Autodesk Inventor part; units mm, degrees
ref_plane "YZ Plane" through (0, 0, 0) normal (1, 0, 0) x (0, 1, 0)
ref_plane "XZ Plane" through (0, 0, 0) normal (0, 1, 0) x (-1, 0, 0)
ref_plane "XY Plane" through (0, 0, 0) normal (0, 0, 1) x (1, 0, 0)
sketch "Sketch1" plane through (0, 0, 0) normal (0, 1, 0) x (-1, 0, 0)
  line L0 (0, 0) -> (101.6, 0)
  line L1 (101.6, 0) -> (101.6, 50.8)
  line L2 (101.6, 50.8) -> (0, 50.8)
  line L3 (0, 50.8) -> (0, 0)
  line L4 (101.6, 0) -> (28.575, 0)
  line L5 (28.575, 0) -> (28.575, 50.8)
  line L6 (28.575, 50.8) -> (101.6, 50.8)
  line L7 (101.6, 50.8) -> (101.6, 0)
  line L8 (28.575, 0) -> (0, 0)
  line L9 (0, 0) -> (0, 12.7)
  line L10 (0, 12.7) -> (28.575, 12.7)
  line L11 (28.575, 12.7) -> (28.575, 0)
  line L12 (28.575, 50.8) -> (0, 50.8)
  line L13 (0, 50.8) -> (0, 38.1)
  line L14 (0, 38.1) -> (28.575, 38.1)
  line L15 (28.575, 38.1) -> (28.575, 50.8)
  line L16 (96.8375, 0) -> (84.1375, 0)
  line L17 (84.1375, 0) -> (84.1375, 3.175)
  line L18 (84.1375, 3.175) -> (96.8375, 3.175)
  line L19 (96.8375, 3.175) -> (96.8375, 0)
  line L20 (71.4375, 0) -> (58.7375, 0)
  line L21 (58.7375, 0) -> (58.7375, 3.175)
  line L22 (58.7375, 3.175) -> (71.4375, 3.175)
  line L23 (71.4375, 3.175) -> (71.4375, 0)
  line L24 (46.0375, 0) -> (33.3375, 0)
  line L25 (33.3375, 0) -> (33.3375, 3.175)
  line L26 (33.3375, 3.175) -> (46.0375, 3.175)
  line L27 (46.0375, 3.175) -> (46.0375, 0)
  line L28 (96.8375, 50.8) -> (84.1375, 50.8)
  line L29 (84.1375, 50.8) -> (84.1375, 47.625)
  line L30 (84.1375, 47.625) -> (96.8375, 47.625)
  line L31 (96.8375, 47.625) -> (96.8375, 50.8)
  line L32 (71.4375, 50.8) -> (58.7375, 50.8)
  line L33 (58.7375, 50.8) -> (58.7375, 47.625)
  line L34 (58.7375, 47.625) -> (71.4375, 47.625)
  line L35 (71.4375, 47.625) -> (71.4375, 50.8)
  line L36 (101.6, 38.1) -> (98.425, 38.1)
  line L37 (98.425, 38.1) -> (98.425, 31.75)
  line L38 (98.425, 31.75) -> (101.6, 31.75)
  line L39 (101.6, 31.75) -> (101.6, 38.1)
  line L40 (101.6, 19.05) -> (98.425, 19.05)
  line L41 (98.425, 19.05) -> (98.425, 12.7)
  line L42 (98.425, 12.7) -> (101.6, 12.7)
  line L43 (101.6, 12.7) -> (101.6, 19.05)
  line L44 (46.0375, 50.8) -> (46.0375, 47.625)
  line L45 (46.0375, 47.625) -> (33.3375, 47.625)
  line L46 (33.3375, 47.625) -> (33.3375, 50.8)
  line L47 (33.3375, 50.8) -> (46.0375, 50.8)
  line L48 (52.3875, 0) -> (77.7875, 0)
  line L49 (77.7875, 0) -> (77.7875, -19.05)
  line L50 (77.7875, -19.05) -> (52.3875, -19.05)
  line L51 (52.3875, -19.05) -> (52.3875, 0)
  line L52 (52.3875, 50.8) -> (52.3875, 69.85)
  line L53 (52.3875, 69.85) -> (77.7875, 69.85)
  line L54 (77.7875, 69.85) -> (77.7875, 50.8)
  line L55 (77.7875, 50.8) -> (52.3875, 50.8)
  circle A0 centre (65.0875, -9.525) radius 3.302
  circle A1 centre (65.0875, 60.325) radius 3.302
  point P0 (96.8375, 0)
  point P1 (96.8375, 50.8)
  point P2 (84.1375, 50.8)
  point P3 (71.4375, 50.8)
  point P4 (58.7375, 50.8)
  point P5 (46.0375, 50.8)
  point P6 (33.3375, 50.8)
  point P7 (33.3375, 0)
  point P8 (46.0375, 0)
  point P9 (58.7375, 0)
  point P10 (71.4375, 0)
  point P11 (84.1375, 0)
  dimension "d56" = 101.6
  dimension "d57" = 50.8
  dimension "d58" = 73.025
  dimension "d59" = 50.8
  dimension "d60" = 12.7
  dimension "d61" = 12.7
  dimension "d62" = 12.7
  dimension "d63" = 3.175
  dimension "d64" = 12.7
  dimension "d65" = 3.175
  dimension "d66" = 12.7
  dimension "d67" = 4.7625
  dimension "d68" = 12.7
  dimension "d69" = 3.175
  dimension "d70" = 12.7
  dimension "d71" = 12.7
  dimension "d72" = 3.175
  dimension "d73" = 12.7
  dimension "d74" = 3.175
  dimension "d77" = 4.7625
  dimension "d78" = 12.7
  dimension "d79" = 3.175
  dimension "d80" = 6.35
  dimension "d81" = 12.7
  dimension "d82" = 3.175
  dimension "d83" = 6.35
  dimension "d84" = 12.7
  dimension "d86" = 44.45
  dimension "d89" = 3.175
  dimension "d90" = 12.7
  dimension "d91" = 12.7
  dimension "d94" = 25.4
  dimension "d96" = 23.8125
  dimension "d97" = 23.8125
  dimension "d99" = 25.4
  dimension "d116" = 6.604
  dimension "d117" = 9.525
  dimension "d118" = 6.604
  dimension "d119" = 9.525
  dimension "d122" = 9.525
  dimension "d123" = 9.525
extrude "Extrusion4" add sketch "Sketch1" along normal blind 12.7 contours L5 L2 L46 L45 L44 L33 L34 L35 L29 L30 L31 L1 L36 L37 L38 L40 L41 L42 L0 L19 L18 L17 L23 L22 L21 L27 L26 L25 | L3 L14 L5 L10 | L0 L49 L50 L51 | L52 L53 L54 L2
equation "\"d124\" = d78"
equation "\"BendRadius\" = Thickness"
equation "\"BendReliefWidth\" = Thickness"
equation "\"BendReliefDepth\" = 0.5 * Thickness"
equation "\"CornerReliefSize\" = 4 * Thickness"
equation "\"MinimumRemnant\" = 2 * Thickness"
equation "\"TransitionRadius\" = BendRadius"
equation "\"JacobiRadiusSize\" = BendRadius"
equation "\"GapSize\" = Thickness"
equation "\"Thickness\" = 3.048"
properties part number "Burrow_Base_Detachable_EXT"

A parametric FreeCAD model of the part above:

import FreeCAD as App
import Part
import Sketcher
Q = App.Units.Quantity

doc = App.newDocument("Part")
params = doc.addObject("Spreadsheet::Sheet", "Params")
for row, (alias, value) in enumerate([
    ("sketch1_diameter", "0.26 in"),
    ("sketch1_width", "1 in"),
    ("sketch1_width2", "0.5 in"),
    ("sketch1_width3", "0.1875 in"),
    ("sketch1_width4", "0.125 in"),
    ("pad1_length", "0.5 in"),
], start=1):
    params.set(f"A{row}", alias)
    params.set(f"B{row}", "=" + value)
    params.setAlias(f"B{row}", alias)

body = doc.addObject("PartDesign::Body", "Body")

sketch1 = body.newObject("Sketcher::SketchObject", "Sketch")
sketch1.AttachmentSupport = (doc.getObject("XZ_Plane"), [""])
sketch1.MapMode = "FlatFace"
sketch1.addGeometry(Part.LineSegment(App.Vector(-28.575, 12.7, 0), App.Vector(-28.575, 0, 0)), False)
sketch1.addGeometry(Part.LineSegment(App.Vector(-28.575, 0, 0), App.Vector(-33.3375, 0, 0)), False)
sketch1.addGeometry(Part.LineSegment(App.Vector(-33.3375, 0, 0), App.Vector(-33.3375, 3.175, 0)), False)
sketch1.addGeometry(Part.LineSegment(App.Vector(-33.3375, 3.175, 0), App.Vector(-46.0375, 3.175, 0)), False)
sketch1.addGeometry(Part.LineSegment(App.Vector(-46.0375, 3.175, 0), App.Vector(-46.0375, 0, 0)), False)
sketch1.addGeometry(Part.LineSegment(App.Vector(-46.0375, 0, 0), App.Vector(-52.3875, 0, 0)), False)
sketch1.addGeometry(Part.LineSegment(App.Vector(-52.3875, 0, 0), App.Vector(-52.3875, -19.05, 0)), False)
sketch1.addGeometry(Part.LineSegment(App.Vector(-52.3875, -19.05, 0), App.Vector(-77.7875, -19.05, 0)), False)
sketch1.addGeometry(Part.LineSegment(App.Vector(-77.7875, -19.05, 0), App.Vector(-77.7875, 0, 0)), False)
sketch1.addGeometry(Part.LineSegment(App.Vector(-77.7875, 0, 0), App.Vector(-84.1375, 0, 0)), False)
sketch1.addGeometry(Part.LineSegment(App.Vector(-84.1375, 0, 0), App.Vector(-84.1375, 3.175, 0)), False)
sketch1.addGeometry(Part.LineSegment(App.Vector(-84.1375, 3.175, 0), App.Vector(-96.8375, 3.175, 0)), False)
sketch1.addGeometry(Part.LineSegment(App.Vector(-96.8375, 3.175, 0), App.Vector(-96.8375, 0, 0)), False)
sketch1.addGeometry(Part.LineSegment(App.Vector(-96.8375, 0, 0), App.Vector(-101.6, 0, 0)), False)
sketch1.addGeometry(Part.LineSegment(App.Vector(-101.6, 0, 0), App.Vector(-101.6, 12.7, 0)), False)
sketch1.addGeometry(Part.LineSegment(App.Vector(-101.6, 12.7, 0), App.Vector(-98.425, 12.7, 0)), False)
sketch1.addGeometry(Part.LineSegment(App.Vector(-98.425, 12.7, 0), App.Vector(-98.425, 19.05, 0)), False)
sketch1.addGeometry(Part.LineSegment(App.Vector(-98.425, 19.05, 0), App.Vector(-101.6, 19.05, 0)), False)
sketch1.addGeometry(Part.LineSegment(App.Vector(-101.6, 19.05, 0), App.Vector(-101.6, 31.75, 0)), False)
sketch1.addGeometry(Part.LineSegment(App.Vector(-101.6, 31.75, 0), App.Vector(-98.425, 31.75, 0)), False)
sketch1.addGeometry(Part.LineSegment(App.Vector(-98.425, 31.75, 0), App.Vector(-98.425, 38.1, 0)), False)
sketch1.addGeometry(Part.LineSegment(App.Vector(-98.425, 38.1, 0), App.Vector(-101.6, 38.1, 0)), False)
sketch1.addGeometry(Part.LineSegment(App.Vector(-101.6, 38.1, 0), App.Vector(-101.6, 50.8, 0)), False)
sketch1.addGeometry(Part.LineSegment(App.Vector(-101.6, 50.8, 0), App.Vector(-96.8375, 50.8, 0)), False)
sketch1.addGeometry(Part.LineSegment(App.Vector(-96.8375, 50.8, 0), App.Vector(-96.8375, 47.625, 0)), False)
sketch1.addGeometry(Part.LineSegment(App.Vector(-96.8375, 47.625, 0), App.Vector(-84.1375, 47.625, 0)), False)
sketch1.addGeometry(Part.LineSegment(App.Vector(-84.1375, 47.625, 0), App.Vector(-84.1375, 50.8, 0)), False)
sketch1.addGeometry(Part.LineSegment(App.Vector(-84.1375, 50.8, 0), App.Vector(-77.7875, 50.8, 0)), False)
sketch1.addGeometry(Part.LineSegment(App.Vector(-77.7875, 50.8, 0), App.Vector(-77.7875, 69.85, 0)), False)
sketch1.addGeometry(Part.LineSegment(App.Vector(-77.7875, 69.85, 0), App.Vector(-52.3875, 69.85, 0)), False)
sketch1.addGeometry(Part.LineSegment(App.Vector(-52.3875, 69.85, 0), App.Vector(-52.3875, 50.8, 0)), False)
sketch1.addGeometry(Part.LineSegment(App.Vector(-52.3875, 50.8, 0), App.Vector(-46.0375, 50.8, 0)), False)
sketch1.addGeometry(Part.LineSegment(App.Vector(-46.0375, 50.8, 0), App.Vector(-46.0375, 47.625, 0)), False)
sketch1.addGeometry(Part.LineSegment(App.Vector(-46.0375, 47.625, 0), App.Vector(-33.3375, 47.625, 0)), False)
sketch1.addGeometry(Part.LineSegment(App.Vector(-33.3375, 47.625, 0), App.Vector(-33.3375, 50.8, 0)), False)
sketch1.addGeometry(Part.LineSegment(App.Vector(-33.3375, 50.8, 0), App.Vector(-28.575, 50.8, 0)), False)
sketch1.addGeometry(Part.LineSegment(App.Vector(-28.575, 50.8, 0), App.Vector(-28.575, 38.1, 0)), False)
sketch1.addGeometry(Part.LineSegment(App.Vector(-28.575, 38.1, 0), App.Vector(0, 38.1, 0)), False)
sketch1.addGeometry(Part.LineSegment(App.Vector(0, 38.1, 0), App.Vector(0, 12.7, 0)), False)
sketch1.addGeometry(Part.LineSegment(App.Vector(0, 12.7, 0), App.Vector(-28.575, 12.7, 0)), False)
sketch1.addGeometry(Part.LineSegment(App.Vector(-58.7375, 47.625, 0), App.Vector(-58.7375, 50.8, 0)), False)
sketch1.addGeometry(Part.LineSegment(App.Vector(-58.7375, 50.8, 0), App.Vector(-71.4375, 50.8, 0)), False)
sketch1.addGeometry(Part.LineSegment(App.Vector(-71.4375, 50.8, 0), App.Vector(-71.4375, 47.625, 0)), False)
sketch1.addGeometry(Part.LineSegment(App.Vector(-71.4375, 47.625, 0), App.Vector(-58.7375, 47.625, 0)), False)
sketch1.addGeometry(Part.LineSegment(App.Vector(-71.4375, 3.175, 0), App.Vector(-71.4375, 0, 0)), False)
sketch1.addGeometry(Part.LineSegment(App.Vector(-71.4375, 0, 0), App.Vector(-58.7375, 0, 0)), False)
sketch1.addGeometry(Part.LineSegment(App.Vector(-58.7375, 0, 0), App.Vector(-58.7375, 3.175, 0)), False)
sketch1.addGeometry(Part.LineSegment(App.Vector(-58.7375, 3.175, 0), App.Vector(-71.4375, 3.175, 0)), False)
sketch1.addGeometry(Part.Circle(App.Vector(-65.0875, 60.325, 0), App.Vector(0, 0, 1), 3.302), False)
sketch1.addGeometry(Part.Circle(App.Vector(-65.0875, -9.525, 0), App.Vector(0, 0, 1), 3.302), False)
sketch1.addConstraint(Sketcher.Constraint("Coincident", 0, 2, 1, 1))
sketch1.addConstraint(Sketcher.Constraint("Coincident", 1, 2, 2, 1))
sketch1.addConstraint(Sketcher.Constraint("Coincident", 2, 2, 3, 1))
sketch1.addConstraint(Sketcher.Constraint("Coincident", 3, 2, 4, 1))
sketch1.addConstraint(Sketcher.Constraint("Coincident", 4, 2, 5, 1))
sketch1.addConstraint(Sketcher.Constraint("Coincident", 5, 2, 6, 1))
sketch1.addConstraint(Sketcher.Constraint("Coincident", 6, 2, 7, 1))
sketch1.addConstraint(Sketcher.Constraint("Coincident", 7, 2, 8, 1))
sketch1.addConstraint(Sketcher.Constraint("Coincident", 8, 2, 9, 1))
sketch1.addConstraint(Sketcher.Constraint("Coincident", 9, 2, 10, 1))
sketch1.addConstraint(Sketcher.Constraint("Coincident", 10, 2, 11, 1))
sketch1.addConstraint(Sketcher.Constraint("Coincident", 11, 2, 12, 1))
sketch1.addConstraint(Sketcher.Constraint("Coincident", 12, 2, 13, 1))
sketch1.addConstraint(Sketcher.Constraint("Coincident", 13, 2, 14, 1))
sketch1.addConstraint(Sketcher.Constraint("Coincident", 14, 2, 15, 1))
sketch1.addConstraint(Sketcher.Constraint("Coincident", 15, 2, 16, 1))
sketch1.addConstraint(Sketcher.Constraint("Coincident", 16, 2, 17, 1))
sketch1.addConstraint(Sketcher.Constraint("Coincident", 17, 2, 18, 1))
sketch1.addConstraint(Sketcher.Constraint("Coincident", 18, 2, 19, 1))
sketch1.addConstraint(Sketcher.Constraint("Coincident", 19, 2, 20, 1))
sketch1.addConstraint(Sketcher.Constraint("Coincident", 20, 2, 21, 1))
sketch1.addConstraint(Sketcher.Constraint("Coincident", 21, 2, 22, 1))
sketch1.addConstraint(Sketcher.Constraint("Coincident", 22, 2, 23, 1))
sketch1.addConstraint(Sketcher.Constraint("Coincident", 23, 2, 24, 1))
sketch1.addConstraint(Sketcher.Constraint("Coincident", 24, 2, 25, 1))
sketch1.addConstraint(Sketcher.Constraint("Coincident", 25, 2, 26, 1))
sketch1.addConstraint(Sketcher.Constraint("Coincident", 26, 2, 27, 1))
sketch1.addConstraint(Sketcher.Constraint("Coincident", 27, 2, 28, 1))
sketch1.addConstraint(Sketcher.Constraint("Coincident", 28, 2, 29, 1))
sketch1.addConstraint(Sketcher.Constraint("Coincident", 29, 2, 30, 1))
sketch1.addConstraint(Sketcher.Constraint("Coincident", 30, 2, 31, 1))
sketch1.addConstraint(Sketcher.Constraint("Coincident", 31, 2, 32, 1))
sketch1.addConstraint(Sketcher.Constraint("Coincident", 32, 2, 33, 1))
sketch1.addConstraint(Sketcher.Constraint("Coincident", 33, 2, 34, 1))
sketch1.addConstraint(Sketcher.Constraint("Coincident", 34, 2, 35, 1))
sketch1.addConstraint(Sketcher.Constraint("Coincident", 35, 2, 36, 1))
sketch1.addConstraint(Sketcher.Constraint("Coincident", 36, 2, 37, 1))
sketch1.addConstraint(Sketcher.Constraint("Coincident", 37, 2, 38, 1))
sketch1.addConstraint(Sketcher.Constraint("Coincident", 38, 2, 39, 1))
sketch1.addConstraint(Sketcher.Constraint("Coincident", 39, 2, 0, 1))
sketch1.addConstraint(Sketcher.Constraint("Coincident", 40, 2, 41, 1))
sketch1.addConstraint(Sketcher.Constraint("Coincident", 41, 2, 42, 1))
sketch1.addConstraint(Sketcher.Constraint("Coincident", 42, 2, 43, 1))
sketch1.addConstraint(Sketcher.Constraint("Coincident", 43, 2, 40, 1))
sketch1.addConstraint(Sketcher.Constraint("Coincident", 44, 2, 45, 1))
sketch1.addConstraint(Sketcher.Constraint("Coincident", 45, 2, 46, 1))
sketch1.addConstraint(Sketcher.Constraint("Coincident", 46, 2, 47, 1))
sketch1.addConstraint(Sketcher.Constraint("Coincident", 47, 2, 44, 1))
sketch1.addConstraint(Sketcher.Constraint("Vertical", 0))
sketch1.addConstraint(Sketcher.Constraint("Horizontal", 1))
sketch1.addConstraint(Sketcher.Constraint("Vertical", 2))
sketch1.addConstraint(Sketcher.Constraint("Horizontal", 3))
sketch1.addConstraint(Sketcher.Constraint("Vertical", 4))
sketch1.addConstraint(Sketcher.Constraint("Horizontal", 5))
sketch1.addConstraint(Sketcher.Constraint("Vertical", 6))
sketch1.addConstraint(Sketcher.Constraint("Horizontal", 7))
sketch1.addConstraint(Sketcher.Constraint("Vertical", 8))
sketch1.addConstraint(Sketcher.Constraint("Horizontal", 9))
sketch1.addConstraint(Sketcher.Constraint("Vertical", 10))
sketch1.addConstraint(Sketcher.Constraint("Horizontal", 11))
sketch1.addConstraint(Sketcher.Constraint("Vertical", 12))
sketch1.addConstraint(Sketcher.Constraint("Horizontal", 13))
sketch1.addConstraint(Sketcher.Constraint("Vertical", 14))
sketch1.addConstraint(Sketcher.Constraint("Horizontal", 15))
sketch1.addConstraint(Sketcher.Constraint("Vertical", 16))
sketch1.addConstraint(Sketcher.Constraint("Horizontal", 17))
sketch1.addConstraint(Sketcher.Constraint("Vertical", 18))
sketch1.addConstraint(Sketcher.Constraint("Horizontal", 19))
sketch1.addConstraint(Sketcher.Constraint("Vertical", 20))
sketch1.addConstraint(Sketcher.Constraint("Horizontal", 21))
sketch1.addConstraint(Sketcher.Constraint("Vertical", 22))
sketch1.addConstraint(Sketcher.Constraint("Horizontal", 23))
sketch1.addConstraint(Sketcher.Constraint("Vertical", 24))
sketch1.addConstraint(Sketcher.Constraint("Horizontal", 25))
sketch1.addConstraint(Sketcher.Constraint("Vertical", 26))
sketch1.addConstraint(Sketcher.Constraint("Horizontal", 27))
sketch1.addConstraint(Sketcher.Constraint("Vertical", 28))
sketch1.addConstraint(Sketcher.Constraint("Horizontal", 29))
sketch1.addConstraint(Sketcher.Constraint("Vertical", 30))
sketch1.addConstraint(Sketcher.Constraint("Horizontal", 31))
sketch1.addConstraint(Sketcher.Constraint("Vertical", 32))
sketch1.addConstraint(Sketcher.Constraint("Horizontal", 33))
sketch1.addConstraint(Sketcher.Constraint("Vertical", 34))
sketch1.addConstraint(Sketcher.Constraint("Horizontal", 35))
sketch1.addConstraint(Sketcher.Constraint("Vertical", 36))
sketch1.addConstraint(Sketcher.Constraint("Horizontal", 37))
sketch1.addConstraint(Sketcher.Constraint("Vertical", 38))
sketch1.addConstraint(Sketcher.Constraint("Horizontal", 39))
sketch1.addConstraint(Sketcher.Constraint("Vertical", 40))
sketch1.addConstraint(Sketcher.Constraint("Horizontal", 41))
sketch1.addConstraint(Sketcher.Constraint("Vertical", 42))
sketch1.addConstraint(Sketcher.Constraint("Horizontal", 43))
sketch1.addConstraint(Sketcher.Constraint("Vertical", 44))
sketch1.addConstraint(Sketcher.Constraint("Horizontal", 45))
sketch1.addConstraint(Sketcher.Constraint("Vertical", 46))
sketch1.addConstraint(Sketcher.Constraint("Horizontal", 47))
sketch1.addConstraint(Sketcher.Constraint("Equal", 48, 49))
sketch1.addConstraint(Sketcher.Constraint("PointOnObject", 0, 2, -1))
sketch1.addConstraint(Sketcher.Constraint("PointOnObject", 4, 2, -1))
sketch1.addConstraint(Sketcher.Constraint("PointOnObject", 8, 2, -1))
sketch1.addConstraint(Sketcher.Constraint("PointOnObject", 12, 2, -1))
sketch1.addConstraint(Sketcher.Constraint("PointOnObject", 37, 2, -2))
sketch1.addConstraint(Sketcher.Constraint("PointOnObject", 44, 2, -1))
sketch1.addConstraint(Sketcher.Constraint("Horizontal", 3, 2, 10, 2))
sketch1.addConstraint(Sketcher.Constraint("Horizontal", 23, 2, 26, 2))
sketch1.addConstraint(Sketcher.Constraint("Horizontal", 27, 2, 30, 2))
sketch1.addConstraint(Sketcher.Constraint("Horizontal", 25, 2, 32, 2))
sketch1.addConstraint(Sketcher.Constraint("Horizontal", 31, 2, 34, 2))
sketch1.addConstraint(Sketcher.Constraint("Horizontal", 21, 2, 36, 2))
sketch1.addConstraint(Sketcher.Constraint("Horizontal", 15, 2, 38, 2))
sketch1.addConstraint(Sketcher.Constraint("Horizontal", 35, 2, 40, 2))
sketch1.addConstraint(Sketcher.Constraint("Horizontal", 33, 2, 42, 2))
sketch1.addConstraint(Sketcher.Constraint("Horizontal", 11, 2, 46, 2))
sketch1.addConstraint(Sketcher.Constraint("Vertical", 48, 3, 49, 3))
sketch1.addConstraint(Sketcher.Constraint("Vertical", 14, 2, 17, 2))
sketch1.addConstraint(Sketcher.Constraint("Vertical", 16, 2, 19, 2))
sketch1.addConstraint(Sketcher.Constraint("Vertical", 18, 2, 21, 2))
sketch1.addConstraint(Sketcher.Constraint("Vertical", 12, 2, 23, 2))
sketch1.addConstraint(Sketcher.Constraint("Vertical", 10, 2, 25, 2))
sketch1.addConstraint(Sketcher.Constraint("Vertical", 8, 2, 27, 2))
sketch1.addConstraint(Sketcher.Constraint("Vertical", 6, 2, 29, 2))
sketch1.addConstraint(Sketcher.Constraint("Vertical", 4, 2, 31, 2))
sketch1.addConstraint(Sketcher.Constraint("Vertical", 2, 2, 33, 2))
sketch1.addConstraint(Sketcher.Constraint("Vertical", 0, 2, 35, 2))
sketch1.addConstraint(Sketcher.Constraint("Vertical", 42, 2, 44, 2))
sketch1.addConstraint(Sketcher.Constraint("Vertical", 43, 2, 45, 2))
sketch1.addConstraint(Sketcher.Constraint("Equal", 5, 9))
sketch1.addConstraint(Sketcher.Constraint("Equal", 3, 11))
sketch1.addConstraint(Sketcher.Constraint("Equal", 1, 13))
sketch1.addConstraint(Sketcher.Constraint("Equal", 33, 41))
sketch1.addConstraint(Sketcher.Constraint("Equal", 47, 0))
sketch1.addConstraint(Sketcher.Constraint("Equal", 21, 2))
sketch1.addConstraint(Sketcher.Constraint("Equal", 31, 16))
sketch1.addConstraint(Sketcher.Constraint("Equal", 14, 18))
sketch1.addConstraint(Sketcher.Constraint("Equal", 16, 20))
sketch1.addConstraint(Sketcher.Constraint("Equal", 18, 22))
sketch1.addConstraint(Sketcher.Constraint("Equal", 12, 24))
sketch1.addConstraint(Sketcher.Constraint("Equal", 8, 28))
sketch1.addConstraint(Sketcher.Constraint("Equal", 29, 38))
sketch1.addConstraint(Sketcher.Constraint("Diameter", 48, Q("0.26 in")))
sketch1.addConstraint(Sketcher.Constraint("DistanceX", 7, 2, 7, 1, Q("1 in")))
sketch1.addConstraint(Sketcher.Constraint("DistanceX", 3, 2, 3, 1, Q("0.5 in")))
sketch1.addConstraint(Sketcher.Constraint("DistanceX", 13, 2, -1, 1, Q("4 in")))
sketch1.addConstraint(Sketcher.Constraint("DistanceY", 49, 3, 2, 2, Q("0.5 in")))
sketch1.addConstraint(Sketcher.Constraint("DistanceX", 49, 3, 5, 2, Q("0.5 in")))
sketch1.addConstraint(Sketcher.Constraint("DistanceY", 32, 2, 48, 3, Q("0.5 in")))
sketch1.addConstraint(Sketcher.Constraint("DistanceX", 40, 2, 31, 2, Q("0.5 in")))
sketch1.addConstraint(Sketcher.Constraint("DistanceX", 1, 2, 1, 1, Q("0.1875 in")))
sketch1.addConstraint(Sketcher.Constraint("DistanceX", 15, 1, 15, 2, Q("0.125 in")))
sketch1.addConstraint(Sketcher.Constraint("DistanceY", 6, 2, 49, 3, Q("0.375 in")))
sketch1.setExpression("Constraints[139]", "Params.sketch1_diameter")
sketch1.setExpression("Constraints[140]", "Params.sketch1_width")
sketch1.setExpression("Constraints[141]", "Params.sketch1_width2")
sketch1.setExpression("Constraints[147]", "Params.sketch1_width3")
sketch1.setExpression("Constraints[148]", "Params.sketch1_width4")
pad1 = body.newObject("PartDesign::Pad", "Pad")
pad1.Profile = sketch1
pad1.setExpression("Length", "Params.pad1_length")
pad1.Reversed = True

doc.recompute()
